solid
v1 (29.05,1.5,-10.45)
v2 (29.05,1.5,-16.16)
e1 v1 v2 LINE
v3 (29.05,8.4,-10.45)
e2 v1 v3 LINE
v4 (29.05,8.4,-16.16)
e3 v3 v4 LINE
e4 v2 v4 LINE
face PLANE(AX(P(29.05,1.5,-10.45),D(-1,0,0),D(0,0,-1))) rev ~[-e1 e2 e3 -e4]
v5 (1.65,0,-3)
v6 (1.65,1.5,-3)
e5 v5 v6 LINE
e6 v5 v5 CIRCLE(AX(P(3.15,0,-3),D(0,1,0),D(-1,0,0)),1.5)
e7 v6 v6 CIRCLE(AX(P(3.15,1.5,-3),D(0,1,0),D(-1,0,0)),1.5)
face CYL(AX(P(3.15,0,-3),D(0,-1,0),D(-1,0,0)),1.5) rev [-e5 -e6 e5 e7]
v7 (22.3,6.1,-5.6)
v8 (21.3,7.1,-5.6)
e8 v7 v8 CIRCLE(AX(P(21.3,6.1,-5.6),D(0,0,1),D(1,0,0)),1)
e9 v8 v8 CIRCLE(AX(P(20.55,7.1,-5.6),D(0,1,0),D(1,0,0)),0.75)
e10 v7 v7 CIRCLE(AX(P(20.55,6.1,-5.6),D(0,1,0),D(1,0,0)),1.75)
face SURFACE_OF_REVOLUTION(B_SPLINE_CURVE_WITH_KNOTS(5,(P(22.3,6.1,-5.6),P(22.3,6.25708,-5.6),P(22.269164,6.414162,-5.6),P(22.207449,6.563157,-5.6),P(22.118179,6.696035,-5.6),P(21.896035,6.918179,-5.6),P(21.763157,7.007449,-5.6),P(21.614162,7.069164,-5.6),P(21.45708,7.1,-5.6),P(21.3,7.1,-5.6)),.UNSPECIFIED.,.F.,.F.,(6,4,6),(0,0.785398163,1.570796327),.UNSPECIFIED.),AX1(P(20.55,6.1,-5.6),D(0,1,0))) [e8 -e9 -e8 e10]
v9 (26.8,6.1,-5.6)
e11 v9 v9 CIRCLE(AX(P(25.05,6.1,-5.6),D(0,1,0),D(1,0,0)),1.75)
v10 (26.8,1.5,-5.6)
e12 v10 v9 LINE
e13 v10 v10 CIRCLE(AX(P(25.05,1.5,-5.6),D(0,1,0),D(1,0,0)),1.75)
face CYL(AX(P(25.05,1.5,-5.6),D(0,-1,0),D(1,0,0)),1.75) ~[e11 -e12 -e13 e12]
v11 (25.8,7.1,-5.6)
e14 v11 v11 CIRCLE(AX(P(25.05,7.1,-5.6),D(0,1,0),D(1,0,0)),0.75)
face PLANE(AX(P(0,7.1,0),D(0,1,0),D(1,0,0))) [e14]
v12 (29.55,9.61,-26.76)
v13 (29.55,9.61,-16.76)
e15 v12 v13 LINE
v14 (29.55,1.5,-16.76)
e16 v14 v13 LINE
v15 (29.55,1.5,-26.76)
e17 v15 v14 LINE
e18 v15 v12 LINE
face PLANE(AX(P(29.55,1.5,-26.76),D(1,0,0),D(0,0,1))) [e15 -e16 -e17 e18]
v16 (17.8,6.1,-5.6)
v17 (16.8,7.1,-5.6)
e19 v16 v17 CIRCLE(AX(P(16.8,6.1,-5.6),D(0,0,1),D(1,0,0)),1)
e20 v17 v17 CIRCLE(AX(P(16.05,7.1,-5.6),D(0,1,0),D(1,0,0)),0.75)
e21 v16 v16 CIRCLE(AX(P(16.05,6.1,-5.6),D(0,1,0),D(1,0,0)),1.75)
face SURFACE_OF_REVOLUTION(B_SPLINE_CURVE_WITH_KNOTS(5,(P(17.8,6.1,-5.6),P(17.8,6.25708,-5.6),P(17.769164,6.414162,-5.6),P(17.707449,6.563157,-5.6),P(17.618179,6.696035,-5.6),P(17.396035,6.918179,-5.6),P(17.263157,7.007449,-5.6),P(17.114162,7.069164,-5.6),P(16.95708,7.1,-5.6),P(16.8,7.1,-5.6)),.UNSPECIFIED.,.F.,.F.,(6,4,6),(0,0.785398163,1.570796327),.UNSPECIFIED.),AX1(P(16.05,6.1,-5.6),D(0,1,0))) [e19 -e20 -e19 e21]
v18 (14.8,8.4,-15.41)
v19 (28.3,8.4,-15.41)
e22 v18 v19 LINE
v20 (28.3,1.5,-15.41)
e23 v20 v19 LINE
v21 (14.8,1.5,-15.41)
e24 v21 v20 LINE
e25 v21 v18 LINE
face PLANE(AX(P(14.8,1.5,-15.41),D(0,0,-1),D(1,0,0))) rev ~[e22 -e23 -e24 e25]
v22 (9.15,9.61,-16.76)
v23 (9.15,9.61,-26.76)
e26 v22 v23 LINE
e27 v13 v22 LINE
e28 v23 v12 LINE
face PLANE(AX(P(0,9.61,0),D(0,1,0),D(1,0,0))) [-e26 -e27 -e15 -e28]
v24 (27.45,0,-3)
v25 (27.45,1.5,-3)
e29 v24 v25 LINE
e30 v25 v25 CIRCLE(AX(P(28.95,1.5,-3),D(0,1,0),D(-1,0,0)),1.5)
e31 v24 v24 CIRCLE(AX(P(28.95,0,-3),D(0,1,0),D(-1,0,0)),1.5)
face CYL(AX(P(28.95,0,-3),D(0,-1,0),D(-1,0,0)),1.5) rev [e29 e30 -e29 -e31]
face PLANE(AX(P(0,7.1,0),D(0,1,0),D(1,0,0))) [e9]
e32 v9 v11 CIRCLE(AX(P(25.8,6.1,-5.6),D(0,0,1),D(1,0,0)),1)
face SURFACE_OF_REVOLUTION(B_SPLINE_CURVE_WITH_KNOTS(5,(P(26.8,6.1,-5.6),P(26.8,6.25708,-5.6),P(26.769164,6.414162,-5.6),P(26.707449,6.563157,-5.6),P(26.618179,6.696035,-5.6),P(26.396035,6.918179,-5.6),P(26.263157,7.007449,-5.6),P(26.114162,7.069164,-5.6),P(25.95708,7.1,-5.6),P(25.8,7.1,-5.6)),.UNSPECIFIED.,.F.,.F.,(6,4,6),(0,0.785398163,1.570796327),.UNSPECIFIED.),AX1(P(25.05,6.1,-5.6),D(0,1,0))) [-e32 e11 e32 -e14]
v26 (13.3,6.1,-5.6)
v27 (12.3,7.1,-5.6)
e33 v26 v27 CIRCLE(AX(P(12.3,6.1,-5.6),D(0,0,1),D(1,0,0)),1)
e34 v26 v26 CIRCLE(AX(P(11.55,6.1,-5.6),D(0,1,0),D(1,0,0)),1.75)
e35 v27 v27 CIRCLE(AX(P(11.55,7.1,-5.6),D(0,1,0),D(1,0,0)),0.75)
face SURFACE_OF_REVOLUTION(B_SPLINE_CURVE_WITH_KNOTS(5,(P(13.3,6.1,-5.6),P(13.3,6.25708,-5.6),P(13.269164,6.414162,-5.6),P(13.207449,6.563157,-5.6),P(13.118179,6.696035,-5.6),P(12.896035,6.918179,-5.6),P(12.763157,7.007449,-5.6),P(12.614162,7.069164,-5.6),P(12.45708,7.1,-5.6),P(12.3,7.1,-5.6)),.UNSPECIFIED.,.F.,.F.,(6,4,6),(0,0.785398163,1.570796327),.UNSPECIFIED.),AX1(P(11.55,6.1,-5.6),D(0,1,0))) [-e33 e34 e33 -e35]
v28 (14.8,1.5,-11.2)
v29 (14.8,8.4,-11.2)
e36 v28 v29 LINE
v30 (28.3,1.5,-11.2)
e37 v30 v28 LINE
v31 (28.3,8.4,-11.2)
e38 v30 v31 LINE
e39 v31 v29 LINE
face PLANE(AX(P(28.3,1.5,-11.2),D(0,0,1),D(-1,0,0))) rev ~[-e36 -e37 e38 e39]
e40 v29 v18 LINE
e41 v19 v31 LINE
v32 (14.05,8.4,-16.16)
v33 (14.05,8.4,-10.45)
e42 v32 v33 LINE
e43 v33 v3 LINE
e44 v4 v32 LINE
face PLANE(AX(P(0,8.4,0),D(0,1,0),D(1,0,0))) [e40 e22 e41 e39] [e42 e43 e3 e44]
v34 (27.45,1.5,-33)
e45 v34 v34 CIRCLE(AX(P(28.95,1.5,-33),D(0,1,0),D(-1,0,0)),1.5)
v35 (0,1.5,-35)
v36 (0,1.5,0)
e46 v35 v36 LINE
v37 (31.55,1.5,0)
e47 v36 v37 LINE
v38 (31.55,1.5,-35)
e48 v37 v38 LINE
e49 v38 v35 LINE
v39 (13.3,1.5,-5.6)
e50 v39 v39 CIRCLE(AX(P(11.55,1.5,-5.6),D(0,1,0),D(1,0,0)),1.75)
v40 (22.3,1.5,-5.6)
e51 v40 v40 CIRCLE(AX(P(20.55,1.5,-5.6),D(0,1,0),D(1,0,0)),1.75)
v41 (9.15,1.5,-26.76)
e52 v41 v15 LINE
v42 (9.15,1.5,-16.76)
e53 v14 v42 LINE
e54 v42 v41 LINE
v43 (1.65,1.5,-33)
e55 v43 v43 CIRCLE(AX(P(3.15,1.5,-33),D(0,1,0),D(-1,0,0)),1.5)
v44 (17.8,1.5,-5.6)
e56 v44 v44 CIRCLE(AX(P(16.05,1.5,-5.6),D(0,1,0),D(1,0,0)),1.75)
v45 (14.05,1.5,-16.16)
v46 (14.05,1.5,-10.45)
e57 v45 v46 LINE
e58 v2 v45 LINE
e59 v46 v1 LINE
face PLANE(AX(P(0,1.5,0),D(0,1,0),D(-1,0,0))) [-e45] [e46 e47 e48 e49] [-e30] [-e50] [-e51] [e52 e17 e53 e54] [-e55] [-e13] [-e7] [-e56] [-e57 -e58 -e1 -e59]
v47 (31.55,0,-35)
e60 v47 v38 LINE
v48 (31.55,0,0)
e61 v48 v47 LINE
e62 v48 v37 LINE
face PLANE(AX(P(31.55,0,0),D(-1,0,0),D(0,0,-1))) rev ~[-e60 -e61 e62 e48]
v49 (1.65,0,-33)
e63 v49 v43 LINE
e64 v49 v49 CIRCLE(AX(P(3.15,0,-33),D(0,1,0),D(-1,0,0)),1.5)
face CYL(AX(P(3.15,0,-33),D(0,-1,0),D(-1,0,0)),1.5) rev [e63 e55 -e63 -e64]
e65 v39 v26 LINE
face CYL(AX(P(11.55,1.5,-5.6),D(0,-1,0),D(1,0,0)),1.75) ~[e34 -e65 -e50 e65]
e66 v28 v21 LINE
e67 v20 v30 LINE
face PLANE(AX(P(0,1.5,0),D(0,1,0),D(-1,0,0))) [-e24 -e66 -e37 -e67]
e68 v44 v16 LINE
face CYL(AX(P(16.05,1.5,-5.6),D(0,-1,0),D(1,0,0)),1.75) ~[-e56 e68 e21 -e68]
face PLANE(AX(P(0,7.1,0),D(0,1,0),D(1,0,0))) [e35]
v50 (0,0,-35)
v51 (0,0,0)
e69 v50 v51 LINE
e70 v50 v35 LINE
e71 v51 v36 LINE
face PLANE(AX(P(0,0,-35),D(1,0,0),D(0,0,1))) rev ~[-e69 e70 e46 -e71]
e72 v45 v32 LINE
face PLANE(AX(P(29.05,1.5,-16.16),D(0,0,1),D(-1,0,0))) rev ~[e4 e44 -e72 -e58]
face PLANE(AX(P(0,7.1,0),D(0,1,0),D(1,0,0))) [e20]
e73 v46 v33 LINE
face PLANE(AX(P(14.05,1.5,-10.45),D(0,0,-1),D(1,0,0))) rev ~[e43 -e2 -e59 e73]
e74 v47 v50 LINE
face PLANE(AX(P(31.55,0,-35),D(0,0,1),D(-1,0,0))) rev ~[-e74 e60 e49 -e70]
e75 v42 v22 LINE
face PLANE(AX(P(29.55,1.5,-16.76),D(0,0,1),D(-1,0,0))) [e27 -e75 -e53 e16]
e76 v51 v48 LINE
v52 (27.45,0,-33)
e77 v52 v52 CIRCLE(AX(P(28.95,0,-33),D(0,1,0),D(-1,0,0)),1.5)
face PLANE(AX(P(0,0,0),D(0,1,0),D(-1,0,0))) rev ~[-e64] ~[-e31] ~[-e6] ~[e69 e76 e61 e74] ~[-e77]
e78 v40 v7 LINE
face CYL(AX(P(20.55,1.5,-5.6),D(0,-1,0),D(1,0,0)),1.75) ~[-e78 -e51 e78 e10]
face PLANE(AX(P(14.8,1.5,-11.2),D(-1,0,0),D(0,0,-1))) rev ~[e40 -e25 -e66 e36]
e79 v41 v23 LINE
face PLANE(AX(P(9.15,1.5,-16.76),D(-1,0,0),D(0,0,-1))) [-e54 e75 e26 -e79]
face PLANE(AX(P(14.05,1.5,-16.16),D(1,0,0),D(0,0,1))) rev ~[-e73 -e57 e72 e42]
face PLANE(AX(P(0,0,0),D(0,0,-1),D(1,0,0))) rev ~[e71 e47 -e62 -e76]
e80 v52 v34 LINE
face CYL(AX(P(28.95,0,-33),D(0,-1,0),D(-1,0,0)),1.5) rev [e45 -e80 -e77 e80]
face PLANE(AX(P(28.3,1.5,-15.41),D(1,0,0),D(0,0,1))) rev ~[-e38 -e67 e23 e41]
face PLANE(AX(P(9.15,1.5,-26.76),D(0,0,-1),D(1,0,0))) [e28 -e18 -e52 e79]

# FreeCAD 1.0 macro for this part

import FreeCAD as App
import Part
import Sketcher

V = App.Vector
Q = App.Units.Quantity


def edges_at(feature, points):
    """Names of the edges that pass closest to the given points."""
    edges = feature.Shape.Edges
    near = lambda p: min(range(len(edges)), key=lambda i: edges[i].distToShape(Part.Vertex(*p))[0])
    return sorted({f"Edge{near(p) + 1}" for p in points})


def add_polygon(sketch, points):
    """Adds a closed chain of lines whose ends are joined by coincident constraints."""
    first, n = sketch.GeometryCount, len(points)
    for a, b in zip(points, points[1:] + points[:1]):
        sketch.addGeometry(Part.LineSegment(App.Vector(*a, 0), App.Vector(*b, 0)), False)
    for i in range(n):
        sketch.addConstraint(Sketcher.Constraint("Coincident", first + i, 2, first + (i + 1) % n, 1))

doc = App.newDocument("Part")
body = doc.addObject("PartDesign::Body", "Body")

# Sketch on XZ plane
sketch1 = doc.addObject("Sketcher::SketchObject", "Sketch")
body.addObject(sketch1)
sketch1.AttachmentSupport = (doc.XZ_Plane, [""])
sketch1.MapMode = "FlatFace"
add_polygon(sketch1, [(0, -35), (0, 0), (31.6, 0), (31.6, -35)])  # lines 0-3
sketch1.addGeometry(Part.Circle(V(28.9, -33, 0), V(0, 0, 1), 1.5), False)  # 4
sketch1.addGeometry(Part.Circle(V(3.1, -33, 0), V(0, 0, 1), 1.5), False)  # 5
sketch1.addGeometry(Part.Circle(V(28.9, -3, 0), V(0, 0, 1), 1.5), False)  # 6
sketch1.addGeometry(Part.Circle(V(3.1, -3, 0), V(0, 0, 1), 1.5), False)  # 7
sketch1.addConstraint(Sketcher.Constraint("Vertical", 0))
sketch1.addConstraint(Sketcher.Constraint("Horizontal", 1))
sketch1.addConstraint(Sketcher.Constraint("Vertical", 2))
sketch1.addConstraint(Sketcher.Constraint("Horizontal", 3))
sketch1.addConstraint(Sketcher.Constraint("Coincident", 0, 2, -1, 1))
sketch1.addConstraint(Sketcher.Constraint("Equal", 4, 5))
sketch1.addConstraint(Sketcher.Constraint("Equal", 5, 6))
sketch1.addConstraint(Sketcher.Constraint("Equal", 6, 7))
sketch1.addConstraint(Sketcher.Constraint("Horizontal", 4, 3, 5, 3))
sketch1.addConstraint(Sketcher.Constraint("Horizontal", 6, 3, 7, 3))
sketch1.addConstraint(Sketcher.Constraint("Vertical", 4, 3, 6, 3))
sketch1.addConstraint(Sketcher.Constraint("Vertical", 5, 3, 7, 3))
sketch1.addConstraint(Sketcher.Constraint("Diameter", 4, Q("3 mm")))
sketch1.addConstraint(Sketcher.Constraint("DistanceY", 0, 1, 0, 2, Q("35 mm")))
sketch1.addConstraint(Sketcher.Constraint("DistanceY", 6, 3, -1, 1, Q("3 mm")))
sketch1.addConstraint(Sketcher.Constraint("DistanceY", 4, 3, 6, 3, Q("30 mm")))
sketch1.addConstraint(Sketcher.Constraint("DistanceX", 1, 1, 1, 2, Q("31.55 mm")))
sketch1.addConstraint(Sketcher.Constraint("DistanceX", 5, 3, 4, 3, Q("25.8 mm")))
sketch1.addConstraint(Sketcher.Constraint("DistanceX", 6, 3, 1, 2, Q("2.6 mm")))
pad1 = doc.addObject("PartDesign::Pad", "Pad")
body.addObject(pad1)
pad1.Profile = sketch1
pad1.Length = 1.5
pad1.Reversed = True

# Sketch on XZ plane
sketch2 = doc.addObject("Sketcher::SketchObject", "Sketch001")
body.addObject(sketch2)
sketch2.AttachmentSupport = (doc.XZ_Plane, [""])
sketch2.MapMode = "FlatFace"
sketch2.AttachmentOffset = App.Placement(V(0, 0, -1.5), App.Rotation())
add_polygon(sketch2, [(30, -27), (9, -27), (9, -17), (30, -17)])  # lines 0-3
sketch2.addConstraint(Sketcher.Constraint("Horizontal", 0))
sketch2.addConstraint(Sketcher.Constraint("Vertical", 1))
sketch2.addConstraint(Sketcher.Constraint("Horizontal", 2))
sketch2.addConstraint(Sketcher.Constraint("Vertical", 3))
sketch2.addConstraint(Sketcher.Constraint("DistanceY", 1, 1, 1, 2, Q("10 mm")))
sketch2.addConstraint(Sketcher.Constraint("DistanceX", 0, 2, 0, 1, Q("20.4 mm")))
sketch2.addConstraint(Sketcher.Constraint("DistanceX", -1, 1, 0, 2, Q("9.15 mm")))
sketch2.addConstraint(Sketcher.Constraint("DistanceY", 0, 2, -1, 1, Q("26.76 mm")))
pad2 = doc.addObject("PartDesign::Pad", "Pad001")
body.addObject(pad2)
pad2.Profile = sketch2
pad2.Length = 8.11
pad2.Reversed = True

# Sketch on XZ plane
sketch3 = doc.addObject("Sketcher::SketchObject", "Sketch002")
body.addObject(sketch3)
sketch3.AttachmentSupport = (doc.XZ_Plane, [""])
sketch3.MapMode = "FlatFace"
sketch3.AttachmentOffset = App.Placement(V(0, 0, -1.5), App.Rotation())
add_polygon(sketch3, [(29.1, -10.4), (29.1, -16.2), (14.1, -16.2), (14.1, -10.4)])  # lines 0-3
add_polygon(sketch3, [(28.3, -15.4), (28.3, -11.2), (14.8, -11.2), (14.8, -15.4)])  # lines 4-7
sketch3.addConstraint(Sketcher.Constraint("Vertical", 0))
sketch3.addConstraint(Sketcher.Constraint("Horizontal", 1))
sketch3.addConstraint(Sketcher.Constraint("Vertical", 2))
sketch3.addConstraint(Sketcher.Constraint("Horizontal", 3))
sketch3.addConstraint(Sketcher.Constraint("Vertical", 4))
sketch3.addConstraint(Sketcher.Constraint("Horizontal", 5))
sketch3.addConstraint(Sketcher.Constraint("Vertical", 6))
sketch3.addConstraint(Sketcher.Constraint("Horizontal", 7))
sketch3.addConstraint(Sketcher.Constraint("DistanceX", 1, 2, 1, 1, Q("15 mm")))
sketch3.addConstraint(Sketcher.Constraint("DistanceY", 0, 2, 0, 1, Q("5.71 mm")))
sketch3.addConstraint(Sketcher.Constraint("DistanceY", 2, 2, -1, 1, Q("10.45 mm")))
sketch3.addConstraint(Sketcher.Constraint("DistanceX", 4, 2, 3, 2, Q("0.75 mm")))
sketch3.addConstraint(Sketcher.Constraint("DistanceY", 4, 2, 3, 2, Q("0.75 mm")))
sketch3.addConstraint(Sketcher.Constraint("DistanceX", 2, 2, 5, 2, Q("0.75 mm")))
sketch3.addConstraint(Sketcher.Constraint("DistanceY", 1, 2, 6, 2, Q("0.75 mm")))
sketch3.addConstraint(Sketcher.Constraint("DistanceX", -1, 1, 4, 2, Q("28.3 mm")))
pad3 = doc.addObject("PartDesign::Pad", "Pad002")
body.addObject(pad3)
pad3.Profile = sketch3
pad3.Length = 6.9
pad3.Reversed = True

# Sketch on XZ plane
sketch4 = doc.addObject("Sketcher::SketchObject", "Sketch003")
body.addObject(sketch4)
sketch4.AttachmentSupport = (doc.XZ_Plane, [""])
sketch4.MapMode = "FlatFace"
sketch4.AttachmentOffset = App.Placement(V(0, 0, -1.5), App.Rotation())
sketch4.addGeometry(Part.Circle(V(11.6, -5.6, 0), V(0, 0, 1), 1.8), False)
sketch4.addGeometry(Part.Circle(V(16.1, -5.6, 0), V(0, 0, 1), 1.8), False)
sketch4.addGeometry(Part.Circle(V(20.6, -5.6, 0), V(0, 0, 1), 1.8), False)
sketch4.addGeometry(Part.Circle(V(25.1, -5.6, 0), V(0, 0, 1), 1.8), False)
sketch4.addConstraint(Sketcher.Constraint("Equal", 0, 1))
sketch4.addConstraint(Sketcher.Constraint("Equal", 1, 2))
sketch4.addConstraint(Sketcher.Constraint("Equal", 2, 3))
sketch4.addConstraint(Sketcher.Constraint("Horizontal", 0, 3, 1, 3))
sketch4.addConstraint(Sketcher.Constraint("Horizontal", 1, 3, 2, 3))
sketch4.addConstraint(Sketcher.Constraint("Horizontal", 2, 3, 3, 3))
sketch4.addConstraint(Sketcher.Constraint("Diameter", 0, Q("3.5 mm")))
sketch4.addConstraint(Sketcher.Constraint("DistanceY", 0, 3, -1, 1, Q("5.6 mm")))
sketch4.addConstraint(Sketcher.Constraint("DistanceX", 0, 3, 1, 3, Q("4.5 mm")))
sketch4.addConstraint(Sketcher.Constraint("DistanceX", 1, 3, 2, 3, Q("4.5 mm")))
sketch4.addConstraint(Sketcher.Constraint("DistanceX", 2, 3, 3, 3, Q("4.5 mm")))
sketch4.addConstraint(Sketcher.Constraint("DistanceX", -1, 1, 0, 3, Q("11.55 mm")))
pad4 = doc.addObject("PartDesign::Pad", "Pad003")
body.addObject(pad4)
pad4.Profile = sketch4
pad4.Length = 5.6
pad4.Reversed = True
doc.recompute()

fillet = doc.addObject("PartDesign::Fillet", "Fillet")
body.addObject(fillet)
fillet.Base = (pad4, edges_at(pad4, [
    (9.8, 7.1, -5.6),
    (14.3, 7.1, -5.6),
    (18.8, 7.1, -5.6),
    (23.3, 7.1, -5.6),
]))
fillet.Radius = 1

doc.recompute()
